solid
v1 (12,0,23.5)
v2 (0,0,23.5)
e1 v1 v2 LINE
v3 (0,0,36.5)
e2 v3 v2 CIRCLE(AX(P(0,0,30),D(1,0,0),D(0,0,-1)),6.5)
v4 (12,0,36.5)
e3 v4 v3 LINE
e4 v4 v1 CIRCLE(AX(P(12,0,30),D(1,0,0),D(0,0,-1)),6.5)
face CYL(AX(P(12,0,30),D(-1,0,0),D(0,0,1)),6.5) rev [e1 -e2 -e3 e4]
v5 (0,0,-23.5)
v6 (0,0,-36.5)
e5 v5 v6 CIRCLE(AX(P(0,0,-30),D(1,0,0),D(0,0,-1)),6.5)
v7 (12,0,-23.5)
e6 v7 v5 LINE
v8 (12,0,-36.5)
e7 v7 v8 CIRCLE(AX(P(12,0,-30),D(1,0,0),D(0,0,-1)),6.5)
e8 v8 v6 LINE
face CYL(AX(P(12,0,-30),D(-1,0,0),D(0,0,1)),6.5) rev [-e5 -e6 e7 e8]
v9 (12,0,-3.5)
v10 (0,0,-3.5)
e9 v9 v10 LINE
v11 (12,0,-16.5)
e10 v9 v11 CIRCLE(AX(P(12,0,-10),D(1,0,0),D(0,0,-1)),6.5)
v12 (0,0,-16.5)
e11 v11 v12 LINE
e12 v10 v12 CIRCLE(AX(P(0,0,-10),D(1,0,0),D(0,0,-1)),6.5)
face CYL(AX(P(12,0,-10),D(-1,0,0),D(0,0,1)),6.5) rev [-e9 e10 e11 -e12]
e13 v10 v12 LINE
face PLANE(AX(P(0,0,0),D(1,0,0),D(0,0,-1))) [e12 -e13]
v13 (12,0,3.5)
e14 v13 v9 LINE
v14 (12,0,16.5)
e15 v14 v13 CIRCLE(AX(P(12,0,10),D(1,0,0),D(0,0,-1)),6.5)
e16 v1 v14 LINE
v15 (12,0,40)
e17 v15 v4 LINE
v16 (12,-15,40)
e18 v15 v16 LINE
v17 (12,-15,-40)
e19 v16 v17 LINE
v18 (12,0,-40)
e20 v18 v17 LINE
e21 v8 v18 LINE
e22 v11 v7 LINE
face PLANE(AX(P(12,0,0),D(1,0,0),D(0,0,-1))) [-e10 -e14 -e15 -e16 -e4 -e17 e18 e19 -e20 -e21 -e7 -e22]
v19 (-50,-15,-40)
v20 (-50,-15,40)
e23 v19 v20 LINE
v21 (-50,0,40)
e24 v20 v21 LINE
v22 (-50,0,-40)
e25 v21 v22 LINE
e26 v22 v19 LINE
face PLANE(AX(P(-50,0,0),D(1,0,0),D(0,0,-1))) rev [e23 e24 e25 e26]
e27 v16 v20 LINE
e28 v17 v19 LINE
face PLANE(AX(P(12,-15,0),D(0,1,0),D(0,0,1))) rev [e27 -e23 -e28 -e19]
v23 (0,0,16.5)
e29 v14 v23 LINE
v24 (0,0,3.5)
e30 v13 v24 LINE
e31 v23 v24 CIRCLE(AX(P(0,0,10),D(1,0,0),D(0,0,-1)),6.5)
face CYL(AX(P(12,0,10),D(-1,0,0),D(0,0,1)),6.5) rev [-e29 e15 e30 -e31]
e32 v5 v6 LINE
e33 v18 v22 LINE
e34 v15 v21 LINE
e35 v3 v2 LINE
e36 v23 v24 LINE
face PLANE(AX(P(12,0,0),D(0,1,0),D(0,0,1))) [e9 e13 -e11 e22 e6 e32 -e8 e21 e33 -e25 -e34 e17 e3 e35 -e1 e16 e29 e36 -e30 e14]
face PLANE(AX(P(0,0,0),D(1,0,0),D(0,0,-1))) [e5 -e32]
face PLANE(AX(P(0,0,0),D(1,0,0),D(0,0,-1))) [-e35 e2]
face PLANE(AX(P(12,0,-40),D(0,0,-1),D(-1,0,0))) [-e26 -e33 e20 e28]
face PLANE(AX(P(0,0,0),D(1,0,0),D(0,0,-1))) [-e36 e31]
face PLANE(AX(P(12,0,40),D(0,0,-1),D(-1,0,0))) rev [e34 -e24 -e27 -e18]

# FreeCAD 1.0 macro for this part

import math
import FreeCAD as App
import Part
import Sketcher
from FreeCAD import Vector
Q = App.Units.Quantity

doc = App.newDocument("Part")
params = doc.addObject("Spreadsheet::Sheet", "Params")
for row, (alias, value) in enumerate([
    ("sketch1_radius", "6.5 mm"),
    ("sketch1_width", "15 mm"),
    ("sketch1_height", "7 mm"),
    ("sketch1_height2", "80 mm"),
    ("pad1_length", "12 mm"),
    ("sketch2_width", "15 mm"),
    ("sketch2_height", "80 mm"),
    ("pad2_length", "50 mm"),
], start=1):
    params.set(f"A{row}", alias)
    params.set(f"B{row}", "=" + value)
    params.setAlias(f"B{row}", alias)

body = doc.addObject("PartDesign::Body", "Body")

# Sketch on YZ plane
sketch1 = body.newObject("Sketcher::SketchObject", "Sketch")
sketch1.AttachmentSupport = (doc.getObject("YZ_Plane"), [""])
sketch1.MapMode = "FlatFace"
sketch1.addGeometry(Part.LineSegment(Vector(0, -40, 0), Vector(0, -36.5, 0)), False)
sketch1.addGeometry(Part.ArcOfCircle(Part.Circle(Vector(0, -30, 0), Vector(0, 0, 1), 6.5), math.radians(90), math.radians(270)), False)
sketch1.addGeometry(Part.LineSegment(Vector(0, -23.5, 0), Vector(0, -16.5, 0)), False)
sketch1.addGeometry(Part.ArcOfCircle(Part.Circle(Vector(0, -10, 0), Vector(0, 0, 1), 6.5), math.radians(90), math.radians(270)), False)
sketch1.addGeometry(Part.LineSegment(Vector(0, -3.5, 0), Vector(0, 3.5, 0)), False)
sketch1.addGeometry(Part.ArcOfCircle(Part.Circle(Vector(0, 10, 0), Vector(0, 0, 1), 6.5), math.radians(90), math.radians(270)), False)
sketch1.addGeometry(Part.LineSegment(Vector(0, 16.5, 0), Vector(0, 23.5, 0)), False)
sketch1.addGeometry(Part.ArcOfCircle(Part.Circle(Vector(0, 30, 0), Vector(0, 0, 1), 6.5), math.radians(90), math.radians(270)), False)
sketch1.addGeometry(Part.LineSegment(Vector(0, 36.5, 0), Vector(0, 40, 0)), False)
sketch1.addGeometry(Part.LineSegment(Vector(0, 40, 0), Vector(-15, 40, 0)), False)
sketch1.addGeometry(Part.LineSegment(Vector(-15, 40, 0), Vector(-15, -40, 0)), False)
sketch1.addGeometry(Part.LineSegment(Vector(-15, -40, 0), Vector(0, -40, 0)), False)
sketch1.addConstraint(Sketcher.Constraint("Coincident", 0, 2, 1, 2))
sketch1.addConstraint(Sketcher.Constraint("Coincident", 1, 1, 2, 1))
sketch1.addConstraint(Sketcher.Constraint("Coincident", 2, 2, 3, 2))
sketch1.addConstraint(Sketcher.Constraint("Coincident", 3, 1, 4, 1))
sketch1.addConstraint(Sketcher.Constraint("Coincident", 4, 2, 5, 2))
sketch1.addConstraint(Sketcher.Constraint("Coincident", 5, 1, 6, 1))
sketch1.addConstraint(Sketcher.Constraint("Coincident", 6, 2, 7, 2))
sketch1.addConstraint(Sketcher.Constraint("Coincident", 7, 1, 8, 1))
sketch1.addConstraint(Sketcher.Constraint("Coincident", 8, 2, 9, 1))
sketch1.addConstraint(Sketcher.Constraint("Coincident", 9, 2, 10, 1))
sketch1.addConstraint(Sketcher.Constraint("Coincident", 10, 2, 11, 1))
sketch1.addConstraint(Sketcher.Constraint("Coincident", 11, 2, 0, 1))
sketch1.addConstraint(Sketcher.Constraint("Vertical", 0))
sketch1.addConstraint(Sketcher.Constraint("Vertical", 2))
sketch1.addConstraint(Sketcher.Constraint("Vertical", 4))
sketch1.addConstraint(Sketcher.Constraint("Vertical", 6))
sketch1.addConstraint(Sketcher.Constraint("Vertical", 8))
sketch1.addConstraint(Sketcher.Constraint("Horizontal", 9))
sketch1.addConstraint(Sketcher.Constraint("Vertical", 10))
sketch1.addConstraint(Sketcher.Constraint("Horizontal", 11))
sketch1.addConstraint(Sketcher.Constraint("Equal", 1, 3))
sketch1.addConstraint(Sketcher.Constraint("Equal", 3, 5))
sketch1.addConstraint(Sketcher.Constraint("Equal", 5, 7))
sketch1.addConstraint(Sketcher.Constraint("Symmetric", 3, 3, 5, 3, -1, 1))
sketch1.addConstraint(Sketcher.Constraint("Symmetric", 1, 3, 7, 3, -1, 1))
sketch1.addConstraint(Sketcher.Constraint("Symmetric", 8, 2, 11, 2, -1, 1))
sketch1.addConstraint(Sketcher.Constraint("PointOnObject", 1, 3, -2))
sketch1.addConstraint(Sketcher.Constraint("PointOnObject", 3, 3, -2))
sketch1.addConstraint(Sketcher.Constraint("PointOnObject", 0, 2, -2))
sketch1.addConstraint(Sketcher.Constraint("PointOnObject", 1, 1, -2))
sketch1.addConstraint(Sketcher.Constraint("PointOnObject", 3, 1, -2))
sketch1.addConstraint(Sketcher.Constraint("PointOnObject", 5, 1, -2))
sketch1.addConstraint(Sketcher.Constraint("Equal", 2, 4))
sketch1.addConstraint(Sketcher.Constraint("Radius", 1, Q("6.5 mm")))
sketch1.addConstraint(Sketcher.Constraint("DistanceX", 9, 2, 9, 1, Q("15 mm")))
sketch1.addConstraint(Sketcher.Constraint("DistanceY", 2, 1, 2, 2, Q("7 mm")))
sketch1.addConstraint(Sketcher.Constraint("DistanceY", 10, 2, 10, 1, Q("80 mm")))
sketch1.setExpression("Constraints[33]", "Params.sketch1_radius")
sketch1.setExpression("Constraints[34]", "Params.sketch1_width")
sketch1.setExpression("Constraints[35]", "Params.sketch1_height")
sketch1.setExpression("Constraints[36]", "Params.sketch1_height2")
pad1 = body.newObject("PartDesign::Pad", "Pad")
pad1.Profile = sketch1
pad1.setExpression("Length", "Params.pad1_length")

# Sketch on YZ plane
sketch2 = body.newObject("Sketcher::SketchObject", "Sketch001")
sketch2.AttachmentSupport = (doc.getObject("YZ_Plane"), [""])
sketch2.MapMode = "FlatFace"
sketch2.addGeometry(Part.LineSegment(Vector(0, -40, 0), Vector(-15, -40, 0)), False)
sketch2.addGeometry(Part.LineSegment(Vector(-15, -40, 0), Vector(-15, 40, 0)), False)
sketch2.addGeometry(Part.LineSegment(Vector(-15, 40, 0), Vector(0, 40, 0)), False)
sketch2.addGeometry(Part.LineSegment(Vector(0, 40, 0), Vector(0, -40, 0)), False)
sketch2.addConstraint(Sketcher.Constraint("Coincident", 0, 2, 1, 1))
sketch2.addConstraint(Sketcher.Constraint("Coincident", 1, 2, 2, 1))
sketch2.addConstraint(Sketcher.Constraint("Coincident", 2, 2, 3, 1))
sketch2.addConstraint(Sketcher.Constraint("Coincident", 3, 2, 0, 1))
sketch2.addConstraint(Sketcher.Constraint("Horizontal", 0))
sketch2.addConstraint(Sketcher.Constraint("Vertical", 1))
sketch2.addConstraint(Sketcher.Constraint("Horizontal", 2))
sketch2.addConstraint(Sketcher.Constraint("Vertical", 3))
sketch2.addConstraint(Sketcher.Constraint("Symmetric", 2, 2, 3, 2, -1, 1))
sketch2.addConstraint(Sketcher.Constraint("DistanceX", 0, 2, 0, 1, Q("15 mm")))
sketch2.addConstraint(Sketcher.Constraint("DistanceY", 1, 1, 1, 2, Q("80 mm")))
sketch2.setExpression("Constraints[9]", "Params.sketch2_width")
sketch2.setExpression("Constraints[10]", "Params.sketch2_height")
pad2 = body.newObject("PartDesign::Pad", "Pad001")
pad2.Profile = sketch2
pad2.setExpression("Length", "Params.pad2_length")
pad2.Reversed = True

doc.recompute()
